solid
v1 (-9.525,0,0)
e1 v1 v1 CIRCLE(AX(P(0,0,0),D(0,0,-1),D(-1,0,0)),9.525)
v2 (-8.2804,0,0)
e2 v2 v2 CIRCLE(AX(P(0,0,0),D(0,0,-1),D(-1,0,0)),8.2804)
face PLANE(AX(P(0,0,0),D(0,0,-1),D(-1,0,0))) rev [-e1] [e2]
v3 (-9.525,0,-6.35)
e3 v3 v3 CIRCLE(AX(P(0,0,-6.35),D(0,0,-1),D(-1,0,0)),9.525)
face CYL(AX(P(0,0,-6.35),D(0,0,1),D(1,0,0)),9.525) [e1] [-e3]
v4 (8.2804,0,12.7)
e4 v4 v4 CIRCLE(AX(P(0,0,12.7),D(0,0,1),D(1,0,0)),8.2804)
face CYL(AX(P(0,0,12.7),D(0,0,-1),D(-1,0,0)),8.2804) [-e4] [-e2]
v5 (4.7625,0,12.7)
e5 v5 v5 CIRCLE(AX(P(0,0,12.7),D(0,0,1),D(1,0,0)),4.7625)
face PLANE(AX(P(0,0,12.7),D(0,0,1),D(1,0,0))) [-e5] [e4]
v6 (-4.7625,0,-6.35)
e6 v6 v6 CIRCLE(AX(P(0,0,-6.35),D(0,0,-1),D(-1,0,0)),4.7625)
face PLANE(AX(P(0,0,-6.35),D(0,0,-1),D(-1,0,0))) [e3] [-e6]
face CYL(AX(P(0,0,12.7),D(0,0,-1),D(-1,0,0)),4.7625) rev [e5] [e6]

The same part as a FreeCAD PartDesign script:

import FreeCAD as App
import Part
import Sketcher
from FreeCAD import Vector
Q = App.Units.Quantity

doc = App.newDocument("Part")
body = doc.addObject("PartDesign::Body", "Body")

# Sketch on XY plane
sketch1 = body.newObject("Sketcher::SketchObject", "Sketch")
sketch1.AttachmentSupport = (doc.getObject("XY_Plane"), [""])
sketch1.MapMode = "FlatFace"
sketch1.addGeometry([
    Part.Circle(Vector(0, 0, 0), Vector(0, 0, 1), 8.3),
    Part.Circle(Vector(0, 0, 0), Vector(0, 0, 1), 4.8),
], False)
sketch1.addConstraint([
    Sketcher.Constraint("Coincident", 0, 3, -1, 1),
    Sketcher.Constraint("Coincident", 1, 3, -1, 1),
    Sketcher.Constraint("Diameter", 0, Q("0.652 in")),
    Sketcher.Constraint("Diameter", 1, Q("0.375 in")),
])
pad1 = body.newObject("PartDesign::Pad", "Pad")
pad1.Profile = sketch1
pad1.Length = Q("0.5 in")

# Sketch on XY plane
sketch2 = body.newObject("Sketcher::SketchObject", "Sketch001")
sketch2.AttachmentSupport = (doc.getObject("XY_Plane"), [""])
sketch2.MapMode = "FlatFace"
sketch2.AttachmentOffset = App.Placement(Vector(0, 0, -0.25 * 25.4), App.Rotation())
sketch2.addGeometry([
    Part.Circle(Vector(0, 0, 0), Vector(0, 0, 1), 9.5),
    Part.Circle(Vector(0, 0, 0), Vector(0, 0, 1), 4.8),
], False)
sketch2.addConstraint([
    Sketcher.Constraint("Coincident", 0, 3, -1, 1),
    Sketcher.Constraint("Coincident", 1, 3, -1, 1),
    Sketcher.Constraint("Diameter", 0, Q("0.75 in")),
    Sketcher.Constraint("Diameter", 1, Q("0.375 in")),
])
pad2 = body.newObject("PartDesign::Pad", "Pad001")
pad2.Profile = sketch2
pad2.Length = Q("0.25 in")

doc.recompute()
